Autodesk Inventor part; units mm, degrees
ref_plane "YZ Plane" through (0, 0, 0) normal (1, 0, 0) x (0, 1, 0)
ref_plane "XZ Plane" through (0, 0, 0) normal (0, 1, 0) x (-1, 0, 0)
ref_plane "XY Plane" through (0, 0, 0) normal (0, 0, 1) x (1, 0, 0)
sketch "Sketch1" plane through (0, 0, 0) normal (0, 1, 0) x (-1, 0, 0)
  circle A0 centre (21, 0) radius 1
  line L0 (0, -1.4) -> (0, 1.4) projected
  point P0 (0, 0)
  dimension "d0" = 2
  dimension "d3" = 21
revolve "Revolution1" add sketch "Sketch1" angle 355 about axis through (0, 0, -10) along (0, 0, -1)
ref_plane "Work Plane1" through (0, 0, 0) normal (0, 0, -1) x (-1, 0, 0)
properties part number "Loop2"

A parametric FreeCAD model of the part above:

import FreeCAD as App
import Part
import Sketcher

V = App.Vector

doc = App.newDocument("Part")
params = doc.addObject("Spreadsheet::Sheet", "Params")
for row, (alias, value) in enumerate([
    ("sketch1_diameter", "2 mm"),
    ("revolution_angle", "355 deg"),
], start=1):
    params.set(f"A{row}", alias)
    params.set(f"B{row}", "=" + value)
    params.setAlias(f"B{row}", alias)

body = doc.addObject("PartDesign::Body", "Body")

# Sketch on XZ plane
sketch1 = body.newObject("Sketcher::SketchObject", "Sketch")
sketch1.AttachmentSupport = (doc.getObject("XZ_Plane"), [""])
sketch1.MapMode = "FlatFace"
sketch1.addGeometry(Part.Circle(V(-21, 0, 0), V(0, 0, 1), 1), False)
sketch1.addConstraint([
    Sketcher.Constraint("PointOnObject", 0, 3, -1),
    Sketcher.Constraint("Diameter", 0, 2.0),
    Sketcher.Constraint("DistanceX", 0, 3, -1, 1, 21.0),
])
sketch1.setExpression("Constraints[1]", "Params.sketch1_diameter")
revolution = body.newObject("PartDesign::Revolution", "Revolution")
revolution.Profile = sketch1
revolution.ReferenceAxis = (sketch1, ["V_Axis"])
revolution.setExpression("Angle", "Params.revolution_angle")
revolution.Reversed = True

doc.recompute()
